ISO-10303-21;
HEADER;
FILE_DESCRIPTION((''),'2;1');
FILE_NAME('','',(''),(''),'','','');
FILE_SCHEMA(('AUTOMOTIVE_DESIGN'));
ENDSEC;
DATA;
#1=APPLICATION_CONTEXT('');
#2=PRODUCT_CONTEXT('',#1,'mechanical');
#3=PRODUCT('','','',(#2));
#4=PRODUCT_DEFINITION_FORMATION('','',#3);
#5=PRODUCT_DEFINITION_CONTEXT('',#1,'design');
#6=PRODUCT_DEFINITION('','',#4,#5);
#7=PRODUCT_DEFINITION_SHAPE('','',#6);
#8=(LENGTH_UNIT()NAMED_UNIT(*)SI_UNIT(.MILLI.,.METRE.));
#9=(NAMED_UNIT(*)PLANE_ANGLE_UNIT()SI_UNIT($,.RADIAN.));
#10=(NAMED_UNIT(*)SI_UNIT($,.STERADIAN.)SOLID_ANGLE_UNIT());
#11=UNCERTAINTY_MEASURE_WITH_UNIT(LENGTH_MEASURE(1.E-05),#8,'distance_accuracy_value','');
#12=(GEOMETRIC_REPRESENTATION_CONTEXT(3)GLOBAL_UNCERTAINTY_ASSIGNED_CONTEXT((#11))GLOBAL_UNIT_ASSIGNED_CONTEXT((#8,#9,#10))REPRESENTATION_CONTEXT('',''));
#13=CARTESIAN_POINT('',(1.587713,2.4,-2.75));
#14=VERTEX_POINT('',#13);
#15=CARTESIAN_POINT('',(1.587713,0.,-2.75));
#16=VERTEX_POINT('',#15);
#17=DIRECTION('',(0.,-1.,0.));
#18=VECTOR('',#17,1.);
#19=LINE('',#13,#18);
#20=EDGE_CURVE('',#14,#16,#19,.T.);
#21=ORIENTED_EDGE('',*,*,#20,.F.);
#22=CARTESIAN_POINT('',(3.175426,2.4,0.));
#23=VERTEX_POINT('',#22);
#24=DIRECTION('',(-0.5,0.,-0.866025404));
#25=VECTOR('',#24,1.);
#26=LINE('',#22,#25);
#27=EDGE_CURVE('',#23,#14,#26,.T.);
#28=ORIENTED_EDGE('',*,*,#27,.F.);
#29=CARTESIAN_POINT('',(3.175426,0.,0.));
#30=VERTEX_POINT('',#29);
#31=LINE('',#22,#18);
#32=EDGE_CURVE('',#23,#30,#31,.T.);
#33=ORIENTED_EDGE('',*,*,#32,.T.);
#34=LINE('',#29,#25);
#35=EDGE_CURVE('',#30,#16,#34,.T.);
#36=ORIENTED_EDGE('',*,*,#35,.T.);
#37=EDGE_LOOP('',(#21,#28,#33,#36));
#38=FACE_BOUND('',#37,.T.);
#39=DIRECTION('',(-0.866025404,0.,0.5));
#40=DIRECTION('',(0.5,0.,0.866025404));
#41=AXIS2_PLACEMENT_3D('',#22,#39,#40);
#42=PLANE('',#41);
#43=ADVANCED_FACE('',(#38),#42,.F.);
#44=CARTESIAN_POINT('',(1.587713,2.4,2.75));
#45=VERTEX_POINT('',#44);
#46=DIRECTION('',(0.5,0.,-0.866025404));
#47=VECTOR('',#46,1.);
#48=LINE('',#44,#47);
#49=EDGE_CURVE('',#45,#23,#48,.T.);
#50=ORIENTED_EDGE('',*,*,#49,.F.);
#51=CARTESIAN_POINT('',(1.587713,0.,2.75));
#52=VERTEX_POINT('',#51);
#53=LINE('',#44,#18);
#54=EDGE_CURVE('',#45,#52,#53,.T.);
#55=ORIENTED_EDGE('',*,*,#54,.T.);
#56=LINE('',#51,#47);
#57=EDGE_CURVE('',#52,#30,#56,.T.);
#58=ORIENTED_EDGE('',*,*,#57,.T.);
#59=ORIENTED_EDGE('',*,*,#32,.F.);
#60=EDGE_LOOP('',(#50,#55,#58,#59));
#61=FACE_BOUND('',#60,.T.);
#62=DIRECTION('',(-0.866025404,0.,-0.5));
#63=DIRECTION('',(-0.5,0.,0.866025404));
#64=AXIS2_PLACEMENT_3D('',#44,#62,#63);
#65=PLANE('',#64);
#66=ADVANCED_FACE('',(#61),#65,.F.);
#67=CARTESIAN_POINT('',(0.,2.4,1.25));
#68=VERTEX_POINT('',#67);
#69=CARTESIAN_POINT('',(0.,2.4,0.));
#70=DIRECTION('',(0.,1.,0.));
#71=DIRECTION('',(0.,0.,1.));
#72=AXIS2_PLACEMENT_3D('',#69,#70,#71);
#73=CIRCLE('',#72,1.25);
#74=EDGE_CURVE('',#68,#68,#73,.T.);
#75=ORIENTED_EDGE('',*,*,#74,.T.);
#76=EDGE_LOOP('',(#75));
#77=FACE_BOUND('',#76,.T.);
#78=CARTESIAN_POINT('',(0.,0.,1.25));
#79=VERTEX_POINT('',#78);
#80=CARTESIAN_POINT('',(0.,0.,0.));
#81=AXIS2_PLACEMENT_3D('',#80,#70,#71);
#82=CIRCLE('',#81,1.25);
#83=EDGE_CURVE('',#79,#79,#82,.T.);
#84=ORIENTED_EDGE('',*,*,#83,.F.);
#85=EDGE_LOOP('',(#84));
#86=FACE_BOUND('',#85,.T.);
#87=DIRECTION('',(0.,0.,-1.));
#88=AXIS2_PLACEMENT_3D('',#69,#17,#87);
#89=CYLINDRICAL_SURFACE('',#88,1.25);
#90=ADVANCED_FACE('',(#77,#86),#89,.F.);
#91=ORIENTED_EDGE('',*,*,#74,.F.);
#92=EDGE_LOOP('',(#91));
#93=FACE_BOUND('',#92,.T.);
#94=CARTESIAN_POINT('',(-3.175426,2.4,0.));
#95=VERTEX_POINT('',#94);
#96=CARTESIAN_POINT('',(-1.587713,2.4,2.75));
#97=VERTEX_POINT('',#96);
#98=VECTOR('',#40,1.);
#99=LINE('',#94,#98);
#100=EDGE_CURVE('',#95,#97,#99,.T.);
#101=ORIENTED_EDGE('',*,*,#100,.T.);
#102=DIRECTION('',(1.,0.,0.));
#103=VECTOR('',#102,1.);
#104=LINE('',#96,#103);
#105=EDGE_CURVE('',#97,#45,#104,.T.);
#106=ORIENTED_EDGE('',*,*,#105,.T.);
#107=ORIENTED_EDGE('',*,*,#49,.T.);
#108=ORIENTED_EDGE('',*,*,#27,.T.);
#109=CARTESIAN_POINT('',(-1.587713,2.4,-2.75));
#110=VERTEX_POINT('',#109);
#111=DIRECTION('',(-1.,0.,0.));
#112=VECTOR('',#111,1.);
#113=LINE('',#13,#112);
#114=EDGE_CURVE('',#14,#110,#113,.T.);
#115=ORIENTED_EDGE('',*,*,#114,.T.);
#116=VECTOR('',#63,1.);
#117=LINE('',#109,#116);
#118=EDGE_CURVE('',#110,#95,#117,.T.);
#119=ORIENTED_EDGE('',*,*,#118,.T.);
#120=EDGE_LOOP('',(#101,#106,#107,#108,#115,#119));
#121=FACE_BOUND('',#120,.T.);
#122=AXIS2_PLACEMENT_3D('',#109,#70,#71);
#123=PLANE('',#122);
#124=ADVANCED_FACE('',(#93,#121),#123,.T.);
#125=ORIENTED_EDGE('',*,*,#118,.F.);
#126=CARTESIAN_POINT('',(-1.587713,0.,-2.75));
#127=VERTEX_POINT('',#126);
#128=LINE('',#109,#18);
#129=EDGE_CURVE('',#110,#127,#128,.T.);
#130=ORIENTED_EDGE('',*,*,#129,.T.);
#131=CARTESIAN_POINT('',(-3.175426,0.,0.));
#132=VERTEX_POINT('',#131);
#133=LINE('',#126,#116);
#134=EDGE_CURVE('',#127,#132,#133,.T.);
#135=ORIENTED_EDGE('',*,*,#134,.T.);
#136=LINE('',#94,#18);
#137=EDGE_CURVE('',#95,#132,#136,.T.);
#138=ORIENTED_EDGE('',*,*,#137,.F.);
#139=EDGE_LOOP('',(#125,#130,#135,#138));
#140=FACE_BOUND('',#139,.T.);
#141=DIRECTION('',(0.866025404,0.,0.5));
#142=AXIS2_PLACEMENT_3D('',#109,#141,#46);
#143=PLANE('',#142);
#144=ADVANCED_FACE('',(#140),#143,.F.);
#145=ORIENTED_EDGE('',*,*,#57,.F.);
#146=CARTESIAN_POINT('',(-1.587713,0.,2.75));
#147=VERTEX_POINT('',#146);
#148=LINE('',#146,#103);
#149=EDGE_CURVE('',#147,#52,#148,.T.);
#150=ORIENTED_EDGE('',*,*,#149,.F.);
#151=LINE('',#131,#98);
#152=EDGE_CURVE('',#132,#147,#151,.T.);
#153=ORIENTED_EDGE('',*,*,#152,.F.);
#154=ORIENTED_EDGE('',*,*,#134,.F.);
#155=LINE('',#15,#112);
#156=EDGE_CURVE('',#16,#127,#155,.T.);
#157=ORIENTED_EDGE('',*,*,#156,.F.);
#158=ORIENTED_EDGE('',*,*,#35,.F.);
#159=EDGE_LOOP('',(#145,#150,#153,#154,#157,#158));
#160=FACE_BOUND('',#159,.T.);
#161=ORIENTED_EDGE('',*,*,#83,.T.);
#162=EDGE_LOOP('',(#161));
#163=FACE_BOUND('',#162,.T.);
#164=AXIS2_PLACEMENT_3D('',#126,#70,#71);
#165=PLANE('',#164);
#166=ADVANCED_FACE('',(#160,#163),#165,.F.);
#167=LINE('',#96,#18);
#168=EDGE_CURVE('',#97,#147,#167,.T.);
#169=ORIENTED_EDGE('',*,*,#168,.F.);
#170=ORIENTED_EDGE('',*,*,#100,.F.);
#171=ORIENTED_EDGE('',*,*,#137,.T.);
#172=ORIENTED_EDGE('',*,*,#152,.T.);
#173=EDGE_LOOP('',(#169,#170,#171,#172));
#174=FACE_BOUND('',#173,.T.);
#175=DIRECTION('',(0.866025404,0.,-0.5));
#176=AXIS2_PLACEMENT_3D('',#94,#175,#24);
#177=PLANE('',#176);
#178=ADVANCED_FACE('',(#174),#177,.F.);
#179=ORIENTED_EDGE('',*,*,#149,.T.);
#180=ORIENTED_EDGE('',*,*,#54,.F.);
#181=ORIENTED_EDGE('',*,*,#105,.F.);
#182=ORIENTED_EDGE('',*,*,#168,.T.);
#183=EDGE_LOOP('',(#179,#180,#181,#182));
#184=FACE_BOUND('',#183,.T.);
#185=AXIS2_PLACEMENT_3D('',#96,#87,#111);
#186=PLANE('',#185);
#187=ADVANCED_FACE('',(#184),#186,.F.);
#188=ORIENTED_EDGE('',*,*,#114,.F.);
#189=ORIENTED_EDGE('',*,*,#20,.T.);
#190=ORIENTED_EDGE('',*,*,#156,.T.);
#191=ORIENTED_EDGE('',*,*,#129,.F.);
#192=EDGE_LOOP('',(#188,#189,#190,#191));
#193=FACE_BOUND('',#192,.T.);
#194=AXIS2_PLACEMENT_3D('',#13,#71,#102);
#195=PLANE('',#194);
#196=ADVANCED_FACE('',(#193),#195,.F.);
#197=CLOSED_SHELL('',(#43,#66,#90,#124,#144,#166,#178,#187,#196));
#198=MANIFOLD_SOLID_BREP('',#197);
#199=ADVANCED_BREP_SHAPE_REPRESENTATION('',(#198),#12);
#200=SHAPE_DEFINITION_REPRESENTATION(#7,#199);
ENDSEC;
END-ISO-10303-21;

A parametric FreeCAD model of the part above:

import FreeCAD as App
import Part
import Sketcher
from FreeCAD import Vector
Q = App.Units.Quantity

doc = App.newDocument("Part")
body = doc.addObject("PartDesign::Body", "Body")

# Sketch on XZ plane
sketch1 = doc.addObject("Sketcher::SketchObject", "Sketch")
body.addObject(sketch1)
sketch1.AttachmentSupport = (doc.XZ_Plane, [""])
sketch1.MapMode = "FlatFace"
sketch1.addGeometry(Part.LineSegment(Vector(-1.587713, -2.75, 0), Vector(-3.175426, 0, 0)), False)
sketch1.addGeometry(Part.LineSegment(Vector(-3.175426, 0, 0), Vector(-1.587713, 2.75, 0)), False)
sketch1.addGeometry(Part.LineSegment(Vector(-1.587713, 2.75, 0), Vector(1.587713, 2.75, 0)), False)
sketch1.addGeometry(Part.LineSegment(Vector(1.587713, 2.75, 0), Vector(3.175426, 0, 0)), False)
sketch1.addGeometry(Part.LineSegment(Vector(3.175426, 0, 0), Vector(1.587713, -2.75, 0)), False)
sketch1.addGeometry(Part.LineSegment(Vector(1.587713, -2.75, 0), Vector(-1.587713, -2.75, 0)), False)
sketch1.addGeometry(Part.Circle(Vector(0, 0, 0), Vector(0, 0, 1), 1.25), False)
sketch1.addConstraint(Sketcher.Constraint("Coincident", 0, 2, 1, 1))
sketch1.addConstraint(Sketcher.Constraint("Coincident", 1, 2, 2, 1))
sketch1.addConstraint(Sketcher.Constraint("Coincident", 2, 2, 3, 1))
sketch1.addConstraint(Sketcher.Constraint("Coincident", 3, 2, 4, 1))
sketch1.addConstraint(Sketcher.Constraint("Coincident", 4, 2, 5, 1))
sketch1.addConstraint(Sketcher.Constraint("Coincident", 5, 2, 0, 1))
sketch1.addConstraint(Sketcher.Constraint("Horizontal", 2))
sketch1.addConstraint(Sketcher.Constraint("Horizontal", 5))
sketch1.addConstraint(Sketcher.Constraint("Coincident", 6, 3, -1, 1))
sketch1.addConstraint(Sketcher.Constraint("Symmetric", 0, 2, 3, 2, -1, 1))
sketch1.addConstraint(Sketcher.Constraint("Symmetric", 1, 2, 4, 2, -1, 1))
sketch1.addConstraint(Sketcher.Constraint("PointOnObject", 0, 2, -1))
sketch1.addConstraint(Sketcher.Constraint("Parallel", 0, 3))
sketch1.addConstraint(Sketcher.Constraint("Vertical", 2, 2, 4, 2))
sketch1.addConstraint(Sketcher.Constraint("Diameter", 6, Q("2.5 mm")))
sketch1.addConstraint(Sketcher.Constraint("Angle", 0, Q("120 deg")))
sketch1.addConstraint(Sketcher.Constraint("DistanceY", 4, 2, 2, 2, Q("5.5 mm")))
sketch1.addConstraint(Sketcher.Constraint("DistanceX", 2, 1, 2, 2, Q("3.175426 mm")))
pad1 = doc.addObject("PartDesign::Pad", "Pad")
body.addObject(pad1)
pad1.Profile = sketch1
pad1.Length = 2.4
pad1.Reversed = True

doc.recompute()
